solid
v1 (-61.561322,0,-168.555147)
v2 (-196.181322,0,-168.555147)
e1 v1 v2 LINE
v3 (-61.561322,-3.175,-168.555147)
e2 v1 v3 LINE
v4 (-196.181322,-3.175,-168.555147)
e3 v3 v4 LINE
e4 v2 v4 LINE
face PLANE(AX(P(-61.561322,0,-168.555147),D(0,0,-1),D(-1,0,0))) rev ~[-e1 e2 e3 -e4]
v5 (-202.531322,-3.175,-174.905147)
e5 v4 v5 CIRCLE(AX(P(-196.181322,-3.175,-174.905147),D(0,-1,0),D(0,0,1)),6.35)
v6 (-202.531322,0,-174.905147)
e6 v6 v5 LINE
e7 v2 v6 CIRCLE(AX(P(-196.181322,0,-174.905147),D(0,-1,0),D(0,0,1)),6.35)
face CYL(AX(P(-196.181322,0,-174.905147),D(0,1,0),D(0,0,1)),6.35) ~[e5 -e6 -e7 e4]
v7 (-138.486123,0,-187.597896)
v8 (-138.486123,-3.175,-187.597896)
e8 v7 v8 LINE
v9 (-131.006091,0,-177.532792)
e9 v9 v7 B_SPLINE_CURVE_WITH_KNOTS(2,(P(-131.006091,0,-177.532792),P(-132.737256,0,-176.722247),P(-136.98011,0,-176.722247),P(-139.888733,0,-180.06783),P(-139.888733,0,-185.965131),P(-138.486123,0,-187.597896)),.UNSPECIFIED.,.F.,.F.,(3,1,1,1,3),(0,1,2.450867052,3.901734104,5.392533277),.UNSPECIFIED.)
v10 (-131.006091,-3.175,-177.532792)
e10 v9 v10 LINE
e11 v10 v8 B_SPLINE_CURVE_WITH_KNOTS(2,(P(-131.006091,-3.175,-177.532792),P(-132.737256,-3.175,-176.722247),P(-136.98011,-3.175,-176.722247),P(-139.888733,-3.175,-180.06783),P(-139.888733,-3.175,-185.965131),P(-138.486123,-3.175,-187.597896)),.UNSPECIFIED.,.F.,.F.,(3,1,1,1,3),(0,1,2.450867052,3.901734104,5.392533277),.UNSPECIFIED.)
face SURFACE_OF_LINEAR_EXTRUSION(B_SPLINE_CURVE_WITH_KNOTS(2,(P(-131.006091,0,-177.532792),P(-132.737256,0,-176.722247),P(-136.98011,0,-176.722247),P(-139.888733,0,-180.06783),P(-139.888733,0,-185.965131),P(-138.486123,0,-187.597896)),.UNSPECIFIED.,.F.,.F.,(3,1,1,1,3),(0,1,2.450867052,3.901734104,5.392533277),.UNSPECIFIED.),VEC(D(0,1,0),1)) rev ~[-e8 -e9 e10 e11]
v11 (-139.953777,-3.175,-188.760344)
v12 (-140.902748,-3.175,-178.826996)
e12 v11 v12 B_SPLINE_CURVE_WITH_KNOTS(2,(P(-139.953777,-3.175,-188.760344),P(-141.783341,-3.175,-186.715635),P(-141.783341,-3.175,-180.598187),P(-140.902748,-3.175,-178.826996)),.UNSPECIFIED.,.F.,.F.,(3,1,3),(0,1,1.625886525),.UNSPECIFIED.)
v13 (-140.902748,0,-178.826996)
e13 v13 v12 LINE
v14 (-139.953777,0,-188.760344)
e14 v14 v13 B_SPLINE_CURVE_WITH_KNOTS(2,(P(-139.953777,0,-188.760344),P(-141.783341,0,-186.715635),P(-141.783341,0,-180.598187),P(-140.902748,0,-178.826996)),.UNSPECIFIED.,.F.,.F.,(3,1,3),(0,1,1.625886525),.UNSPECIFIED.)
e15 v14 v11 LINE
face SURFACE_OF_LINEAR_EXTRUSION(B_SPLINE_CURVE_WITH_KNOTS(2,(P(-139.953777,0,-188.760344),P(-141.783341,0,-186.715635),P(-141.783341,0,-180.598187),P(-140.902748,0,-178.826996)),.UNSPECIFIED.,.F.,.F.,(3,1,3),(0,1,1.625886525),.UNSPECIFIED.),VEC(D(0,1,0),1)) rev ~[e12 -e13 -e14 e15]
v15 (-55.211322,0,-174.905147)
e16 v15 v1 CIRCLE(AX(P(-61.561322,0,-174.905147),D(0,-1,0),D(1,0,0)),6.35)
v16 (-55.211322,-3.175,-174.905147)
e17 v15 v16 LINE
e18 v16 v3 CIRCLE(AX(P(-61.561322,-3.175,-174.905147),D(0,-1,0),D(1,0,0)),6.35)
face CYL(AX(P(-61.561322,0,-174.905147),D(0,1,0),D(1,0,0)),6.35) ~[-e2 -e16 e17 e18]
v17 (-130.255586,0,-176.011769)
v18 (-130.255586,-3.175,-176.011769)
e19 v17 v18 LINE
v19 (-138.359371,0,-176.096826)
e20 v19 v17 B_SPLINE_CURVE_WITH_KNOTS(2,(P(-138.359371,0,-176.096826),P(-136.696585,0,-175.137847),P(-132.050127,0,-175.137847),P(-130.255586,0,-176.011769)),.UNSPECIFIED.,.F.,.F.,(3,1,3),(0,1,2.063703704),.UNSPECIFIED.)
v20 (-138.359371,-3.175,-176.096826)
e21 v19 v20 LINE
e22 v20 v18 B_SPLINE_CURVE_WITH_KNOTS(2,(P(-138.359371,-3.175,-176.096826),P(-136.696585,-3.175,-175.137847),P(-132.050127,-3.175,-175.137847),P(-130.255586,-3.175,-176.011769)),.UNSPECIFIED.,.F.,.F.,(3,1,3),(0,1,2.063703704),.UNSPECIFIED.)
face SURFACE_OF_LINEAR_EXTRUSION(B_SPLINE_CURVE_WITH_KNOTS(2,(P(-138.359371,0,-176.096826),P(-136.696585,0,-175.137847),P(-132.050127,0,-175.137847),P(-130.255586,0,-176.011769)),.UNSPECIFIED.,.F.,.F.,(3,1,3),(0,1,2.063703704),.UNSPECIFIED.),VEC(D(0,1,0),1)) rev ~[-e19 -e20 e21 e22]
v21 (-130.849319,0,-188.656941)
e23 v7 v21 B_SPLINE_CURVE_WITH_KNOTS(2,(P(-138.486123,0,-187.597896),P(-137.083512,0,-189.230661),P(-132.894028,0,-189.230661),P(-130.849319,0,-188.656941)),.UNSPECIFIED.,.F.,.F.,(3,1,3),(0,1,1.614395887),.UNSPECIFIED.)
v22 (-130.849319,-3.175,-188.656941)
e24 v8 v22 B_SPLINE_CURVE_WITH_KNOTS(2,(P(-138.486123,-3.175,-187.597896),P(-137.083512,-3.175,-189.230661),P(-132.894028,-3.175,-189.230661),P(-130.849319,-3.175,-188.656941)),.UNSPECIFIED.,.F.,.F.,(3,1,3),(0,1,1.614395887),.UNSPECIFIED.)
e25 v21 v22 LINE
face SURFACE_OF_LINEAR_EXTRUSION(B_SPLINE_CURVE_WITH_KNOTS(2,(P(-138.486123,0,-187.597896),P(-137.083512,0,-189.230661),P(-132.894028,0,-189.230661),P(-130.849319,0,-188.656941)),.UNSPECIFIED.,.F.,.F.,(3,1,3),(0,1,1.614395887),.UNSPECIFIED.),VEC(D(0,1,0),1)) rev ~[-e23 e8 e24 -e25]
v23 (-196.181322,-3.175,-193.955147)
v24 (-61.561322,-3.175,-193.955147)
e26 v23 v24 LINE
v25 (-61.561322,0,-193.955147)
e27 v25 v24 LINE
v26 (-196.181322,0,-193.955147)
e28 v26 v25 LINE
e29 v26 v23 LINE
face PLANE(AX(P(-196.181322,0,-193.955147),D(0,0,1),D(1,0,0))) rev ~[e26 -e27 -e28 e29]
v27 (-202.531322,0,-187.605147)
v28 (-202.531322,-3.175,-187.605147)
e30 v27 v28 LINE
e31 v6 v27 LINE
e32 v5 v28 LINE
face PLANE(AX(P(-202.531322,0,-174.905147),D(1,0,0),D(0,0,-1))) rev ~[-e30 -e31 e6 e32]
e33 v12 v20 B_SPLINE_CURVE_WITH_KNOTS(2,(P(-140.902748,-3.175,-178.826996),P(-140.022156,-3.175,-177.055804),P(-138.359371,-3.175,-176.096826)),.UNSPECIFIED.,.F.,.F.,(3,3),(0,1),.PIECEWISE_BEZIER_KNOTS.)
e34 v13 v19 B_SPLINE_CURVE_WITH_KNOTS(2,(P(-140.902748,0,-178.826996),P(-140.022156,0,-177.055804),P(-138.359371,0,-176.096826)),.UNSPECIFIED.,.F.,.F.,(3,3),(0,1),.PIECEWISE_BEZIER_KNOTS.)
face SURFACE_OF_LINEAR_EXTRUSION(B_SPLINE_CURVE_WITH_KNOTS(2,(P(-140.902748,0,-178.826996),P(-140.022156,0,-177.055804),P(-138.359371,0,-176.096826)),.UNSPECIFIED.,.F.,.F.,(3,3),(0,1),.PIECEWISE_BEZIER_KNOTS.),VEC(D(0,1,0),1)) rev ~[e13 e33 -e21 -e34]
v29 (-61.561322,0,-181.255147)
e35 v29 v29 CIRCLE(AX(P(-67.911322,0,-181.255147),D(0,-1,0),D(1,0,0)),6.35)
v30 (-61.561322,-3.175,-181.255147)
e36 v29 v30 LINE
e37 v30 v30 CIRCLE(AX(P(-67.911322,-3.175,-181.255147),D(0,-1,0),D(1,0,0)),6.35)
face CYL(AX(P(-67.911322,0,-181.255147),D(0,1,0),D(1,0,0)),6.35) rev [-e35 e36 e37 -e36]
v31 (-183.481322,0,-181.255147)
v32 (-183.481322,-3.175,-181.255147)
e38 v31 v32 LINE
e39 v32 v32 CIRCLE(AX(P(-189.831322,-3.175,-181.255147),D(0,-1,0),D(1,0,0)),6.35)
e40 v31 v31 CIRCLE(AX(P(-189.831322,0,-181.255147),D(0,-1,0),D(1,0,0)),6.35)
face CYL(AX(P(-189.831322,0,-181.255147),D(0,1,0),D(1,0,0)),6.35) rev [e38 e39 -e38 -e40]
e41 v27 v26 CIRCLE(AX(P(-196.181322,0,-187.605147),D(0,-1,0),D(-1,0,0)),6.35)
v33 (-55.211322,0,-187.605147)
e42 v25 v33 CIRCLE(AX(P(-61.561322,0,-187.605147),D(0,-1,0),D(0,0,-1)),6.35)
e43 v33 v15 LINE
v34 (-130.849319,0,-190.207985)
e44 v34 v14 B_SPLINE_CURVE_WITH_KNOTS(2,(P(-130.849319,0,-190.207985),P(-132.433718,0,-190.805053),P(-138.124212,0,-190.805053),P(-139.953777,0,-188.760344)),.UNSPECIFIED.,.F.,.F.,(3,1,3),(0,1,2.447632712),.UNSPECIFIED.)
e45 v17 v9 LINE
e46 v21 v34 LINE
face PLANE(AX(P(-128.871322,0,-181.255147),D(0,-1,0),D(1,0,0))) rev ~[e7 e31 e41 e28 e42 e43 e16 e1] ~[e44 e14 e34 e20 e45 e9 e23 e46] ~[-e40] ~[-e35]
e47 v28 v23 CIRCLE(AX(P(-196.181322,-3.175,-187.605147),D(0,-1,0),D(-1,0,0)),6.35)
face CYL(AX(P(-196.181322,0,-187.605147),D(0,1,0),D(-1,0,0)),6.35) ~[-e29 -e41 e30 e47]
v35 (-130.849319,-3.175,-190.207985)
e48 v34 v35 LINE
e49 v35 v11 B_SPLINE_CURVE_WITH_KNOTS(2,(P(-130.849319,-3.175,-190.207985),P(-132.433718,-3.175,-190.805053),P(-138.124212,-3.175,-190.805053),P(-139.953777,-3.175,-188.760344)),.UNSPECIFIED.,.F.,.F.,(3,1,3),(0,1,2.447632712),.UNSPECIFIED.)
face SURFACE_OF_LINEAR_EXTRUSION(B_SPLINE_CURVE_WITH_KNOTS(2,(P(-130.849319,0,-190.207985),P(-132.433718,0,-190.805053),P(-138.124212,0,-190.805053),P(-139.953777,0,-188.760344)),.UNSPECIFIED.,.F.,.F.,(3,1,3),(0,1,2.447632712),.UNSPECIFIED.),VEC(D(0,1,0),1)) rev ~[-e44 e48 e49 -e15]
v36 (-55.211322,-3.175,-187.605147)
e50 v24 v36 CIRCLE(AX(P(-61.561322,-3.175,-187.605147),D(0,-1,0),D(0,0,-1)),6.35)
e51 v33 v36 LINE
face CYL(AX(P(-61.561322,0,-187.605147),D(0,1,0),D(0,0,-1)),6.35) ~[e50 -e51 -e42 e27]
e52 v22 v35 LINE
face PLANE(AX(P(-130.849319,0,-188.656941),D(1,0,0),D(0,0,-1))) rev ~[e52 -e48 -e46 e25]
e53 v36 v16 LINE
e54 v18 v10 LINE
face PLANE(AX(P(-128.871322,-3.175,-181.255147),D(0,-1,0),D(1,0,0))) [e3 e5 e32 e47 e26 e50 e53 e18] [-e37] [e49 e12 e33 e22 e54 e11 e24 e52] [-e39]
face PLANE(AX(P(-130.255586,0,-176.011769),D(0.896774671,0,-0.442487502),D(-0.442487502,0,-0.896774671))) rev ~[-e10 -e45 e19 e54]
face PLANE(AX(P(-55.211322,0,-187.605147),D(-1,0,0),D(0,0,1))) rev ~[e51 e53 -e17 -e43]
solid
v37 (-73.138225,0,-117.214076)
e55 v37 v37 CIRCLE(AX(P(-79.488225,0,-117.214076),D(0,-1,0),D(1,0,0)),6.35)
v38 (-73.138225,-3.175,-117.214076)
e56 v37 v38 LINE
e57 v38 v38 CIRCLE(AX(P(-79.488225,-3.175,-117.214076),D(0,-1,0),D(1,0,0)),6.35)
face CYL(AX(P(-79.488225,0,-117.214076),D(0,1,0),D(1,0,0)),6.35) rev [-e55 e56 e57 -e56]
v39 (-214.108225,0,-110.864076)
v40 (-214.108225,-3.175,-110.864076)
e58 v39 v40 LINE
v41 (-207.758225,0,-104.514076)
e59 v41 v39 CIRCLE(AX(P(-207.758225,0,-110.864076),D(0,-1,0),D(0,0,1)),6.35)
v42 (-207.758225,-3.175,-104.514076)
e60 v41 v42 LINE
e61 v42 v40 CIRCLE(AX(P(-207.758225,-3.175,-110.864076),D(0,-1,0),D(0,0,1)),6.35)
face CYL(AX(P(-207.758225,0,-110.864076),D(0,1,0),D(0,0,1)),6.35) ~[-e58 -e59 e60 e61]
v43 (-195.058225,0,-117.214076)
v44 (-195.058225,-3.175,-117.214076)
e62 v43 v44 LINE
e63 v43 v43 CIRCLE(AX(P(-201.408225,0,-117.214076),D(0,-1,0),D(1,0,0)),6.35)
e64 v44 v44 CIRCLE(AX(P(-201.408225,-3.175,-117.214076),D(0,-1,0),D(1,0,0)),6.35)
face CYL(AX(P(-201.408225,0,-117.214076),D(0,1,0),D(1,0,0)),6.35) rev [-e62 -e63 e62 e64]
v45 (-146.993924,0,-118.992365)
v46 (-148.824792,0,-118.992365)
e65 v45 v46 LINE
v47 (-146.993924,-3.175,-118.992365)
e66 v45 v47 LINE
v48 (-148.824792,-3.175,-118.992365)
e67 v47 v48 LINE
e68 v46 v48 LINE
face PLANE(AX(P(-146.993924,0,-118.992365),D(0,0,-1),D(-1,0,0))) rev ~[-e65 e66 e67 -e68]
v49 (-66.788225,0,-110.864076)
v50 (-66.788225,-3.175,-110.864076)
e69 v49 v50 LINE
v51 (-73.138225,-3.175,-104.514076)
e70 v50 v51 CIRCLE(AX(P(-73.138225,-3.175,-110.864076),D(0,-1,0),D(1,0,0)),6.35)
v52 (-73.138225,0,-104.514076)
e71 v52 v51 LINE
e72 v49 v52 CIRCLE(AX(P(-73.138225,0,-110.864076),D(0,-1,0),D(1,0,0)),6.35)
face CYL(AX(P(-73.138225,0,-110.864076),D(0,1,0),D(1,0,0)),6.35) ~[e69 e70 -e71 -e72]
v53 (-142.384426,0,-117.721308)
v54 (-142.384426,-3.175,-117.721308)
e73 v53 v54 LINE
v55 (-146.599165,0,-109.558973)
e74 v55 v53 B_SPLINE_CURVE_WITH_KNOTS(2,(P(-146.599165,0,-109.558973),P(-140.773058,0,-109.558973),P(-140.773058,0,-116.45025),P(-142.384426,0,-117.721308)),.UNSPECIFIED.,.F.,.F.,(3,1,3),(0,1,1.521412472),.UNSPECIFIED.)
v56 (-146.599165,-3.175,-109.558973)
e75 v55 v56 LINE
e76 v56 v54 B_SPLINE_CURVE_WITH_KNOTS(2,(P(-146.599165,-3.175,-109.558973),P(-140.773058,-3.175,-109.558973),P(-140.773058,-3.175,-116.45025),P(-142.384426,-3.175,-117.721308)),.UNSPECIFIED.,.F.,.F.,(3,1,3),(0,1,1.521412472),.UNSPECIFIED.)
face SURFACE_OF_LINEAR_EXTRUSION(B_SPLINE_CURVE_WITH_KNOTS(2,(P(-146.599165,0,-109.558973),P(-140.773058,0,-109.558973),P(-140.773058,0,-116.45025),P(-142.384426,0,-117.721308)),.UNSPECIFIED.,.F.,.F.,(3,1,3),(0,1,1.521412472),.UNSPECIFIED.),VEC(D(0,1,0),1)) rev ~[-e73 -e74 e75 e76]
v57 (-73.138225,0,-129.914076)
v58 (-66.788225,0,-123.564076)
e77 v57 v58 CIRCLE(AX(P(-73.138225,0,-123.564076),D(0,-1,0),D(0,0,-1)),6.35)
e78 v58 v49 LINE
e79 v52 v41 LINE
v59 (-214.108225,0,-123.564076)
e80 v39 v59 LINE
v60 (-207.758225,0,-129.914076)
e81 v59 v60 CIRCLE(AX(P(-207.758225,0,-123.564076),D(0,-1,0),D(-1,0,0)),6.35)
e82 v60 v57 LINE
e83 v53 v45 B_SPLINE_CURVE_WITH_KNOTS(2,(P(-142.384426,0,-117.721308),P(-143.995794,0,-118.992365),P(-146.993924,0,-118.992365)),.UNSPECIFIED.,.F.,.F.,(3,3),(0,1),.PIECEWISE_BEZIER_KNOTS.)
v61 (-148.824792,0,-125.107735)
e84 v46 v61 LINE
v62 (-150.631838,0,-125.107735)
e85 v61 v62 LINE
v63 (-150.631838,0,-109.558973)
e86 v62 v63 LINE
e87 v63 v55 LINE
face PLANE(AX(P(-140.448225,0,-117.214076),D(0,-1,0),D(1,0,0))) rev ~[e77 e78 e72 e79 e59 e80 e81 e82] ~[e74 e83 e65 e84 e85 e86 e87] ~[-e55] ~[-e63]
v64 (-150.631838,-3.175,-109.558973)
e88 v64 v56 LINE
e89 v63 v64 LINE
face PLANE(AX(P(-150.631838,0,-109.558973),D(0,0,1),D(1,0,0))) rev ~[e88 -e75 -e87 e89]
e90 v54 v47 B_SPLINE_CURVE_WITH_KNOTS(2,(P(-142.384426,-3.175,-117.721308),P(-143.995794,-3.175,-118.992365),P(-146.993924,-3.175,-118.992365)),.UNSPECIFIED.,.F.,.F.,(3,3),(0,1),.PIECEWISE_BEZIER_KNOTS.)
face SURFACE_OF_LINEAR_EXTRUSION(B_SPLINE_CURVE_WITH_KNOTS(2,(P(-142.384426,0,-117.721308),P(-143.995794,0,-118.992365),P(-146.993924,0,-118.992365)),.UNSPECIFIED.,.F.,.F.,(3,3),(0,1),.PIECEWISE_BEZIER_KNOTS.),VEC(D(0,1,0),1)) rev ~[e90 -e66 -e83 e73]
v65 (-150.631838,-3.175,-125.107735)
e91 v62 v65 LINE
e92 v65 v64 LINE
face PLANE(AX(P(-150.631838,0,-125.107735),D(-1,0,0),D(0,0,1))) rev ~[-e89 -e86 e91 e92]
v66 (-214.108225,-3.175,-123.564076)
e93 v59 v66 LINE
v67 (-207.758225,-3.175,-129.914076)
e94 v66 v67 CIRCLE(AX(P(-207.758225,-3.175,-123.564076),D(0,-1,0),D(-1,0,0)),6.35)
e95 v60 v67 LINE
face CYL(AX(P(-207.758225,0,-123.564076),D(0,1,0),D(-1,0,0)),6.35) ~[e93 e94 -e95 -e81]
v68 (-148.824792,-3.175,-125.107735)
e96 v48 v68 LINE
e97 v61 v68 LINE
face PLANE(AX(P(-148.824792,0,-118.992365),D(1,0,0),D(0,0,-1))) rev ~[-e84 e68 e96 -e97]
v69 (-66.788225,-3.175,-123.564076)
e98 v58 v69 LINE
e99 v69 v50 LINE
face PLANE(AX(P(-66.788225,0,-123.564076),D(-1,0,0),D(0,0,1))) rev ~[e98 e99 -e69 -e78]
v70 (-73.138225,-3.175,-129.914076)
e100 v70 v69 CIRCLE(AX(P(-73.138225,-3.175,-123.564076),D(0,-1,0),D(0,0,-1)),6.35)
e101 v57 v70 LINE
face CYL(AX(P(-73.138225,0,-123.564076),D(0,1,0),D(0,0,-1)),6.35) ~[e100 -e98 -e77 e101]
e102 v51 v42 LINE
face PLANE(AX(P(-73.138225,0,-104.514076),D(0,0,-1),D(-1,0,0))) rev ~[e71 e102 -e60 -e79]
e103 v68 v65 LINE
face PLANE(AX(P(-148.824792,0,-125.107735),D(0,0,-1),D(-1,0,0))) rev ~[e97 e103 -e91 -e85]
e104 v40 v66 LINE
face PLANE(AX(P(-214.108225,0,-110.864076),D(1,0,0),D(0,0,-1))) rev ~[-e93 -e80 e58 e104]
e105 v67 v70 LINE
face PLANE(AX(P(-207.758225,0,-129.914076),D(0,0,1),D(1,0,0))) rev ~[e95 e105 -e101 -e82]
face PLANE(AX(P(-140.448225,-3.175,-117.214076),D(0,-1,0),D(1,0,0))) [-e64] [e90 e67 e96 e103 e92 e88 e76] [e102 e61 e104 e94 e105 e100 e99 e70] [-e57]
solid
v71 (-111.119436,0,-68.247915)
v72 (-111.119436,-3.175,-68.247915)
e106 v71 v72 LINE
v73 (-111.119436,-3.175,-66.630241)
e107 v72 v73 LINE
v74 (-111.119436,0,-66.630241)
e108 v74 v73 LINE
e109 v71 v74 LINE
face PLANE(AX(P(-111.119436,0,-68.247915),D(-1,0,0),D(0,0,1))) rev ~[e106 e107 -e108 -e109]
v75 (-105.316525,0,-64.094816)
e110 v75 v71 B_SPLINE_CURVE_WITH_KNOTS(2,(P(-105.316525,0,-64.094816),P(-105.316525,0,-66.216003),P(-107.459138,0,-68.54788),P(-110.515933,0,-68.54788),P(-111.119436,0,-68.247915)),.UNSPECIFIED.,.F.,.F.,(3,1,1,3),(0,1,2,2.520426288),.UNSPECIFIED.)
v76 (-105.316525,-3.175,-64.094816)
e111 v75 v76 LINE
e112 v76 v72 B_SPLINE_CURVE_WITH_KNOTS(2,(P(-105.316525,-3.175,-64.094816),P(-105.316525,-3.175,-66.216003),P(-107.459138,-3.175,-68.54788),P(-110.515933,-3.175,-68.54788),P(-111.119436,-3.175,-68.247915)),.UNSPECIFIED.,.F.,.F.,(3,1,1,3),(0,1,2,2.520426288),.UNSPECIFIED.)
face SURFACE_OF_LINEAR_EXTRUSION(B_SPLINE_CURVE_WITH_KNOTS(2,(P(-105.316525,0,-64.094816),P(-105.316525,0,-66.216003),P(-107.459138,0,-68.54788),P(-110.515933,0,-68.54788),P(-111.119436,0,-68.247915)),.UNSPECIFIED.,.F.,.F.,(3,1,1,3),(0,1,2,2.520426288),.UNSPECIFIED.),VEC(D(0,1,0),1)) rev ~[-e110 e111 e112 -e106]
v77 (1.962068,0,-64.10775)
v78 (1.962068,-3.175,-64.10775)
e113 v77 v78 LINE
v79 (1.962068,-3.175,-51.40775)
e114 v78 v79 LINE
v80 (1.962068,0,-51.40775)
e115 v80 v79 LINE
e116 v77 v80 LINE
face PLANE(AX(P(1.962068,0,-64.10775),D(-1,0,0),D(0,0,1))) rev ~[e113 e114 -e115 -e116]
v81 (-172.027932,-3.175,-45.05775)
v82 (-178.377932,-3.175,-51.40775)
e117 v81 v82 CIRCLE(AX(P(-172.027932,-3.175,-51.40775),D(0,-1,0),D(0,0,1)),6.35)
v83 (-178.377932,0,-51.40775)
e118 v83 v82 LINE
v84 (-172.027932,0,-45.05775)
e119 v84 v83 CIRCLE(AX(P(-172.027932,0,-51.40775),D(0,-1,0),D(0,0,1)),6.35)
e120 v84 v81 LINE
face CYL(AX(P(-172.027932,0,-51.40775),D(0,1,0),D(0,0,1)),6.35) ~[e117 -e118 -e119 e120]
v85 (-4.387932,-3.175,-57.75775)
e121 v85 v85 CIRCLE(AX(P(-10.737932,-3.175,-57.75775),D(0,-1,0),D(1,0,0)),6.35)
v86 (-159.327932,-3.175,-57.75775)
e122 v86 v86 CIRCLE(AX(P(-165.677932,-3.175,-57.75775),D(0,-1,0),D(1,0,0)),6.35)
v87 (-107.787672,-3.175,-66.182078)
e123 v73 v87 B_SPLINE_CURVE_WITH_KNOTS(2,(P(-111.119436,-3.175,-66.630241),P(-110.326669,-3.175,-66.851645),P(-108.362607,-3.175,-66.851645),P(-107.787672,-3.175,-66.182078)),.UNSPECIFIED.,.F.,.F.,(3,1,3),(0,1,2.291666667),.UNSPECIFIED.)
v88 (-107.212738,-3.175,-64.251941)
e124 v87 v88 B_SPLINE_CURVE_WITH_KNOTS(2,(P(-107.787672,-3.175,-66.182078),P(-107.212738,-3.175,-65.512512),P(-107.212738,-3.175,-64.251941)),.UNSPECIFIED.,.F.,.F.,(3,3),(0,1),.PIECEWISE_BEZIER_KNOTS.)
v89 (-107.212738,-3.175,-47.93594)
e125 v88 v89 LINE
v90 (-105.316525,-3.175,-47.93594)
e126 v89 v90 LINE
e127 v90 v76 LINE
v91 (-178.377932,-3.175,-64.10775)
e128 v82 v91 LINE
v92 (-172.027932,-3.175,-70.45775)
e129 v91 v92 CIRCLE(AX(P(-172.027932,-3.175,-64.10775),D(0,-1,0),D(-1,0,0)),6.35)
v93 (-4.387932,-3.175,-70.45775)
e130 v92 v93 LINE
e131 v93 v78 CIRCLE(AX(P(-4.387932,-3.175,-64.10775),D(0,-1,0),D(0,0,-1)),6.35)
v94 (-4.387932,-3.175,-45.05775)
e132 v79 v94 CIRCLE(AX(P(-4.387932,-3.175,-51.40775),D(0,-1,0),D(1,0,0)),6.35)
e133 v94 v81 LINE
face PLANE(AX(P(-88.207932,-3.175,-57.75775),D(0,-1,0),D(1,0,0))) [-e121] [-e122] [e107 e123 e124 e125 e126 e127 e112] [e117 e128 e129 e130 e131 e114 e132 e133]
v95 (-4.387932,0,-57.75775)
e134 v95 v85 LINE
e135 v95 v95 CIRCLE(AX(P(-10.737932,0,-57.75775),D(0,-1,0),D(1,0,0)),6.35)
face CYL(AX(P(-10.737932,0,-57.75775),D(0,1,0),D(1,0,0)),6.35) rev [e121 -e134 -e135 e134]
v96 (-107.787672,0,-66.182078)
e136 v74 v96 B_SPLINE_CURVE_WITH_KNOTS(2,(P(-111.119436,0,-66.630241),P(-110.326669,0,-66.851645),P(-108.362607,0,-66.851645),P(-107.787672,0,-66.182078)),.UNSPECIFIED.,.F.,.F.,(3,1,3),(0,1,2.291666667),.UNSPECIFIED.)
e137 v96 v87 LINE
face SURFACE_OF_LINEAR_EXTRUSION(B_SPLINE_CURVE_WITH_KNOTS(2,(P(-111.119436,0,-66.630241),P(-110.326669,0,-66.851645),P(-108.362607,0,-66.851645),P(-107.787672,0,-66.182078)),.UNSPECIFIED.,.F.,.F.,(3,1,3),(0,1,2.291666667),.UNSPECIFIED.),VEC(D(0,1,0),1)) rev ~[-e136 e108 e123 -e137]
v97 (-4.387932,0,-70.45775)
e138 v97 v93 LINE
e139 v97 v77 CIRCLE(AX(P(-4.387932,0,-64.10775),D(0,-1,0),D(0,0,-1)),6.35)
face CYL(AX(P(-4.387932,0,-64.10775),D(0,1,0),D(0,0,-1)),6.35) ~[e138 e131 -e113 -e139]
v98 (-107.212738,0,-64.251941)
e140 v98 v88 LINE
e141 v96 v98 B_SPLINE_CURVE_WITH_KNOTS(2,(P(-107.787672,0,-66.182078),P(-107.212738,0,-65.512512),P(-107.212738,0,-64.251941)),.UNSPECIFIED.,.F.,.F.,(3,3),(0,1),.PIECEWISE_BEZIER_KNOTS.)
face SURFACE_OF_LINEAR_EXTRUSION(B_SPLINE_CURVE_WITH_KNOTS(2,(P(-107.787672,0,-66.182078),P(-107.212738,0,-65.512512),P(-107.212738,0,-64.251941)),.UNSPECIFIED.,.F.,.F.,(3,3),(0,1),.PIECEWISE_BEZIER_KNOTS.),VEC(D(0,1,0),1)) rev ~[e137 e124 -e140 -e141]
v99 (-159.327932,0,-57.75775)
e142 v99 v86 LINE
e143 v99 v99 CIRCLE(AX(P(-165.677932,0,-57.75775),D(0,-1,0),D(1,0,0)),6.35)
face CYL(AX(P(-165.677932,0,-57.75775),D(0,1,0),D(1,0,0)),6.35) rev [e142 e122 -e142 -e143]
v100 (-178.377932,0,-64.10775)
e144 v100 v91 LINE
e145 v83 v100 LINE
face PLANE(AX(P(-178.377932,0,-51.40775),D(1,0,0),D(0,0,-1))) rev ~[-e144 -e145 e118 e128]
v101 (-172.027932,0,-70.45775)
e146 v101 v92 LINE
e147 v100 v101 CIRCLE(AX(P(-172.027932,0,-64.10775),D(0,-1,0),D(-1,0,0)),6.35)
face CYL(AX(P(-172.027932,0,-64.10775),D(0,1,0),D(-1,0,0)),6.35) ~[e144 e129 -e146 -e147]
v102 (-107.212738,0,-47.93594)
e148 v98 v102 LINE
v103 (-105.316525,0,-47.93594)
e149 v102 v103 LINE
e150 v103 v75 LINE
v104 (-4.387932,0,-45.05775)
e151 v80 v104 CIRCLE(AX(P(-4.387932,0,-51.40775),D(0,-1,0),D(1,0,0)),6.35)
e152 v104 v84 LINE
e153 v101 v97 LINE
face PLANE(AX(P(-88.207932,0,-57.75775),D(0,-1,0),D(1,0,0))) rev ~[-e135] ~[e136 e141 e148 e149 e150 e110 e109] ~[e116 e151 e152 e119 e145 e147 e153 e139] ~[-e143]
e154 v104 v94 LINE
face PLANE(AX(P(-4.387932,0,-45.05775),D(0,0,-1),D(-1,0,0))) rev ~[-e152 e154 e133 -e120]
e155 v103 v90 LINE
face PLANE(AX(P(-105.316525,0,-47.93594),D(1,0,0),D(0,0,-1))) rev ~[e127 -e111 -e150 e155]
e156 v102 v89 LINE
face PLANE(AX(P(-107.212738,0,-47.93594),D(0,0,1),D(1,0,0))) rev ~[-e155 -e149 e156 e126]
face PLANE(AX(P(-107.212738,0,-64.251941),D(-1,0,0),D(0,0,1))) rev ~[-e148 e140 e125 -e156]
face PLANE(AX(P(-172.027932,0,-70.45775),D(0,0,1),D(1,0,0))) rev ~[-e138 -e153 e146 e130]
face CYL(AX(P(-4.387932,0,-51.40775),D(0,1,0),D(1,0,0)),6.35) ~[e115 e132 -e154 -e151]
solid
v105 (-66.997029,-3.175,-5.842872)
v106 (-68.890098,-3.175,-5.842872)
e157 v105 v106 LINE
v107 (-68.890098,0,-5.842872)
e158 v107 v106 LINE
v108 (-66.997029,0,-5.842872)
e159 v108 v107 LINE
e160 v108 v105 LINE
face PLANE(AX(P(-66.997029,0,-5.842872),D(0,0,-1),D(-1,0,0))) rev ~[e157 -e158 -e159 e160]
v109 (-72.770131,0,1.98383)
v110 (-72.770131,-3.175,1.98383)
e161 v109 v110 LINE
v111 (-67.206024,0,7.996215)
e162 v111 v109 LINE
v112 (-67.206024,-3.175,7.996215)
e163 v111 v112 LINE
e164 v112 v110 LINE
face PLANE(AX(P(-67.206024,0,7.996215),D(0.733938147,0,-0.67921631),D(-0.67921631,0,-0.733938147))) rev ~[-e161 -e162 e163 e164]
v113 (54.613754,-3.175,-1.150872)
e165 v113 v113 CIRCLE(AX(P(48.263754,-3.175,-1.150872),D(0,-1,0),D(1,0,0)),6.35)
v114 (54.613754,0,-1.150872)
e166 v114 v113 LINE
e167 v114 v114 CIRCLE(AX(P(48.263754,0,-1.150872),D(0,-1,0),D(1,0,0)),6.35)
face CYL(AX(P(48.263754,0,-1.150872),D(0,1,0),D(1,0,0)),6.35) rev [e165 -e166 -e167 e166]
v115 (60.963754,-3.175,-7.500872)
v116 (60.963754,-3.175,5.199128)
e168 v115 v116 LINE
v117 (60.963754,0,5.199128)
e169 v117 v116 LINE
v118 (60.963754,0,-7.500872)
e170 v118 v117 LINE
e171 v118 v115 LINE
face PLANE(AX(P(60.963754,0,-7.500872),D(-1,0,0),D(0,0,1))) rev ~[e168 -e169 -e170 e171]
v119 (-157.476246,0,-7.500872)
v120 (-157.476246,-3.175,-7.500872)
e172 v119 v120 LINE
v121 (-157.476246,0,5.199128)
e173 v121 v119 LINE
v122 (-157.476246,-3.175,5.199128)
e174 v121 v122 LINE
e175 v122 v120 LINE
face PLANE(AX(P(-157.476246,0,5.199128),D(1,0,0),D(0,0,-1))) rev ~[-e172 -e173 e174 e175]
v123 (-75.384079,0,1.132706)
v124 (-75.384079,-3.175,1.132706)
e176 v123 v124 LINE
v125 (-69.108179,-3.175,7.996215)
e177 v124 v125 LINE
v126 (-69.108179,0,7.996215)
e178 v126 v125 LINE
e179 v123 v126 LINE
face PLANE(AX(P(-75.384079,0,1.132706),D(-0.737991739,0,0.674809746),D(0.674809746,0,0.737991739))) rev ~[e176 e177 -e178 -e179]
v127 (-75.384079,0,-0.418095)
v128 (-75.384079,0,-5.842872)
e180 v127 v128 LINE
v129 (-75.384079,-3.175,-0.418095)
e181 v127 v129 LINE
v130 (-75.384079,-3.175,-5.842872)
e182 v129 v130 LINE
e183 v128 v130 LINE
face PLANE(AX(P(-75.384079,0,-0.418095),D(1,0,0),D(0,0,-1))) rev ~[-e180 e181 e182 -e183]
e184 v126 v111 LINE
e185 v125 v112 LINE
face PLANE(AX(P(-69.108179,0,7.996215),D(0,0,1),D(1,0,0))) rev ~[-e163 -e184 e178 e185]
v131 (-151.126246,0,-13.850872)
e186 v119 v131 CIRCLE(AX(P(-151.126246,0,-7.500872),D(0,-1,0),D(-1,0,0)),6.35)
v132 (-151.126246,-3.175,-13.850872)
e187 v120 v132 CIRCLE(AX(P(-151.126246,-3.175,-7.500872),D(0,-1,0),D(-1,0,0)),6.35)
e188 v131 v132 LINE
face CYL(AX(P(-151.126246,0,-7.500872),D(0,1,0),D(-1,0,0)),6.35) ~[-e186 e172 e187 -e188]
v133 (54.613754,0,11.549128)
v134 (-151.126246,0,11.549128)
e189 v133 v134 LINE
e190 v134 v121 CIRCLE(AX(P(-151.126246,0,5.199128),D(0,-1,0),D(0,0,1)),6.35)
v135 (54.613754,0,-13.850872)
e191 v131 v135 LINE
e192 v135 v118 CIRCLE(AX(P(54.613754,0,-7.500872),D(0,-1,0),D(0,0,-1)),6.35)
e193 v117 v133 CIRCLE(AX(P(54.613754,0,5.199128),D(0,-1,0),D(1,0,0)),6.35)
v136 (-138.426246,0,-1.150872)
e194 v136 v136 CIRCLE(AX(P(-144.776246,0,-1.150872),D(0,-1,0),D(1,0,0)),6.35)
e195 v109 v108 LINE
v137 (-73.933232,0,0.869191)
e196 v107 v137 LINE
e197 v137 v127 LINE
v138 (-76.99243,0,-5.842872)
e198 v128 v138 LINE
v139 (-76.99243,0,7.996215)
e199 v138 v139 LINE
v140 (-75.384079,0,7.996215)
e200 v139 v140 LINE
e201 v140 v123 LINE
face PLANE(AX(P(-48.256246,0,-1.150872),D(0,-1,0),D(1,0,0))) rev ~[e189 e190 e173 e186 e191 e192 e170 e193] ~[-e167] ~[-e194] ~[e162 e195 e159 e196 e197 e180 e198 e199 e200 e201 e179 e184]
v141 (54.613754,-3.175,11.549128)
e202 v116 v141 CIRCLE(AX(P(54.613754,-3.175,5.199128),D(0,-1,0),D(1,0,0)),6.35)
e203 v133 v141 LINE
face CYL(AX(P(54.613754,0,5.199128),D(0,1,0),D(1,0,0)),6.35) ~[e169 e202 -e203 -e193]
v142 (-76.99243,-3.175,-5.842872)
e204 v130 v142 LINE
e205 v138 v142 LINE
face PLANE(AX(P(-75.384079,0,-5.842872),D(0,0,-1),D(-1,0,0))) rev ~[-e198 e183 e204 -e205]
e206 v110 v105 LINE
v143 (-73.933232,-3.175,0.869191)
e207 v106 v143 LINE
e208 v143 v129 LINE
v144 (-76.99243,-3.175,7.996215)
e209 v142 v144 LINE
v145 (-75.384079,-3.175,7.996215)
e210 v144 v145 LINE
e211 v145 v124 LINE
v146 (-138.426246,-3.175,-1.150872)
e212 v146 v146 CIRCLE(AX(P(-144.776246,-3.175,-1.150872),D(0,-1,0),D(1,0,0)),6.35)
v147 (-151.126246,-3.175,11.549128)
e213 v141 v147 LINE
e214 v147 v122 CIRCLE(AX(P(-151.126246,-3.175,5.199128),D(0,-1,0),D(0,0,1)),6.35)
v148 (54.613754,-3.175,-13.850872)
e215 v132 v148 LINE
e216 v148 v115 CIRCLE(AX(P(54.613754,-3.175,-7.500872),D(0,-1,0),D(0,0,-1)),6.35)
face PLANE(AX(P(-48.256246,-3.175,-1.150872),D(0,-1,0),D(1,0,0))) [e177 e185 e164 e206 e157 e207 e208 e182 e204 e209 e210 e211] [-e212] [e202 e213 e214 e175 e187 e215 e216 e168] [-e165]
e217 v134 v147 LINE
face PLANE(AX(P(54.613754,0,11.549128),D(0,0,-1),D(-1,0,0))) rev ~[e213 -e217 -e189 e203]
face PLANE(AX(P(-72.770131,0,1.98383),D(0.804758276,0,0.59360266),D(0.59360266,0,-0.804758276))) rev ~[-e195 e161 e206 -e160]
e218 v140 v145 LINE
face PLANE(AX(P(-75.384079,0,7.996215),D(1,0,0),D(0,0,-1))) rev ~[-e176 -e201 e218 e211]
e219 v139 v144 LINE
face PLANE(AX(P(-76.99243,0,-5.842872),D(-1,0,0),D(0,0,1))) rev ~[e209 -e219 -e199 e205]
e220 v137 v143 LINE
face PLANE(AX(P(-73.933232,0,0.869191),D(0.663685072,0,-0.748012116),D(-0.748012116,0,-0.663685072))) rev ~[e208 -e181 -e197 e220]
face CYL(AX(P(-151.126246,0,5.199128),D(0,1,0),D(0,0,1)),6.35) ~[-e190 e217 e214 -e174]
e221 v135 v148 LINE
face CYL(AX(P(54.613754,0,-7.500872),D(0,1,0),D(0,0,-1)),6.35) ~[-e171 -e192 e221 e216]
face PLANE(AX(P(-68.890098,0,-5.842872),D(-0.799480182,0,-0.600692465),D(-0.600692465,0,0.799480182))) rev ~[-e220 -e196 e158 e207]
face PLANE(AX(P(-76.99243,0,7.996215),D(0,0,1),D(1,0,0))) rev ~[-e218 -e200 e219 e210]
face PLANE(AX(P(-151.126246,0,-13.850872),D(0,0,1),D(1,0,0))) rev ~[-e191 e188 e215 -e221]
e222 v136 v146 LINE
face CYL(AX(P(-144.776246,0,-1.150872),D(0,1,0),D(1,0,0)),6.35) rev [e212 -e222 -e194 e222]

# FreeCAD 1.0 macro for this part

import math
import FreeCAD as App
import Part
import Sketcher

V = App.Vector
Q = App.Units.Quantity

doc = App.newDocument("Part")
body = doc.addObject("PartDesign::Body", "Body")

# Sketch on XZ plane
sketch1 = body.newObject("Sketcher::SketchObject", "Sketch")
sketch1.AttachmentSupport = (doc.getObject("XZ_Plane"), [""])
sketch1.MapMode = "FlatFace"
sketch1.addGeometry([
    Part.LineSegment(V(54.613754, 11.549128, 0), V(-151.126246, 11.549128, 0)),  # 0
    Part.ArcOfCircle(Part.Circle(V(-151.126246, 5.199128, 0), V(0, 0, 1), 6.35), math.radians(90), math.radians(180)),  # 1
    Part.LineSegment(V(-157.476246, 5.199128, 0), V(-157.476246, -7.500872, 0)),  # 2
    Part.ArcOfCircle(Part.Circle(V(-151.126246, -7.500872, 0), V(0, 0, 1), 6.35), math.radians(180), math.radians(270)),  # 3
    Part.LineSegment(V(-151.126246, -13.850872, 0), V(54.613754, -13.850872, 0)),  # 4
    Part.ArcOfCircle(Part.Circle(V(54.613754, -7.500872, 0), V(0, 0, 1), 6.35), math.radians(-90), math.radians(0)),  # 5
    Part.LineSegment(V(60.963754, -7.500872, 0), V(60.963754, 5.199128, 0)),  # 6
    Part.ArcOfCircle(Part.Circle(V(54.613754, 5.199128, 0), V(0, 0, 1), 6.35), math.radians(0), math.radians(90)),  # 7
    Part.Circle(V(-144.776246, -1.150872, 0), V(0, 0, 1), 6.35),  # 8
    Part.Circle(V(48.263754, -1.150872, 0), V(0, 0, 1), 6.35),  # 9
    Part.LineSegment(V(-67.206024, 7.996215, 0), V(-72.770131, 1.98383, 0)),  # 10
    Part.LineSegment(V(-72.770131, 1.98383, 0), V(-66.997029, -5.842872, 0)),  # 11
    Part.LineSegment(V(-66.997029, -5.842872, 0), V(-68.890098, -5.842872, 0)),  # 12
    Part.LineSegment(V(-68.890098, -5.842872, 0), V(-73.933232, 0.869191, 0)),  # 13
    Part.LineSegment(V(-73.933232, 0.869191, 0), V(-75.384079, -0.418095, 0)),  # 14
    Part.LineSegment(V(-75.384079, -0.418095, 0), V(-75.384079, -5.842872, 0)),  # 15
    Part.LineSegment(V(-75.384079, -5.842872, 0), V(-76.99243, -5.842872, 0)),  # 16
    Part.LineSegment(V(-76.99243, -5.842872, 0), V(-76.99243, 7.996215, 0)),  # 17
    Part.LineSegment(V(-76.99243, 7.996215, 0), V(-75.384079, 7.996215, 0)),  # 18
    Part.LineSegment(V(-75.384079, 7.996215, 0), V(-75.384079, 1.132706, 0)),  # 19
    Part.LineSegment(V(-75.384079, 1.132706, 0), V(-69.108179, 7.996215, 0)),  # 20
    Part.LineSegment(V(-69.108179, 7.996215, 0), V(-67.206024, 7.996215, 0)),  # 21
], False)
sketch1.addConstraint([
    Sketcher.Constraint("Tangent", 0, 2, 1, 1),
    Sketcher.Constraint("Tangent", 1, 2, 2, 1),
    Sketcher.Constraint("Tangent", 2, 2, 3, 1),
    Sketcher.Constraint("Tangent", 3, 2, 4, 1),
    Sketcher.Constraint("Tangent", 4, 2, 5, 1),
    Sketcher.Constraint("Tangent", 5, 2, 6, 1),
    Sketcher.Constraint("Tangent", 6, 2, 7, 1),
    Sketcher.Constraint("Tangent", 7, 2, 0, 1),
    Sketcher.Constraint("Coincident", 10, 2, 11, 1),
    Sketcher.Constraint("Coincident", 11, 2, 12, 1),
    Sketcher.Constraint("Coincident", 12, 2, 13, 1),
    Sketcher.Constraint("Coincident", 13, 2, 14, 1),
    Sketcher.Constraint("Coincident", 14, 2, 15, 1),
    Sketcher.Constraint("Coincident", 15, 2, 16, 1),
    Sketcher.Constraint("Coincident", 16, 2, 17, 1),
    Sketcher.Constraint("Coincident", 17, 2, 18, 1),
    Sketcher.Constraint("Coincident", 18, 2, 19, 1),
    Sketcher.Constraint("Coincident", 19, 2, 20, 1),
    Sketcher.Constraint("Coincident", 20, 2, 21, 1),
    Sketcher.Constraint("Coincident", 21, 2, 10, 1),
    Sketcher.Constraint("Horizontal", 0),
    Sketcher.Constraint("Vertical", 2),
    Sketcher.Constraint("Horizontal", 4),
    Sketcher.Constraint("Vertical", 6),
    Sketcher.Constraint("Horizontal", 12),
    Sketcher.Constraint("Vertical", 15),
    Sketcher.Constraint("Horizontal", 16),
    Sketcher.Constraint("Vertical", 17),
    Sketcher.Constraint("Horizontal", 18),
    Sketcher.Constraint("Vertical", 19),
    Sketcher.Constraint("Horizontal", 21),
    Sketcher.Constraint("Equal", 1, 3),
    Sketcher.Constraint("Equal", 3, 5),
    Sketcher.Constraint("Equal", 5, 7),
    Sketcher.Constraint("Equal", 7, 8),
    Sketcher.Constraint("Equal", 8, 9),
    Sketcher.Constraint("Horizontal", 8, 3, 9, 3),
    Sketcher.Constraint("Horizontal", 12, 2, 15, 2),
    Sketcher.Constraint("Horizontal", 18, 2, 20, 2),
    Sketcher.Constraint("Vertical", 15, 2, 18, 2),
    Sketcher.Constraint("Diameter", 8, Q("0.5 in")),
    Sketcher.Constraint("DistanceX", 0, 2, 0, 1, Q("8.1 in")),
    Sketcher.Constraint("DistanceY", 2, 2, 2, 1, Q("0.5 in")),
    Sketcher.Constraint("DistanceX", 8, 3, 9, 3, Q("7.6 in")),
    Sketcher.Constraint("DistanceY", 8, 3, 0, 2, Q("0.5 in")),
    Sketcher.Constraint("DistanceX", 1, 2, 8, 3, Q("0.5 in")),
    Sketcher.Constraint("DistanceX", 12, 2, 12, 1, 1.893068),
    Sketcher.Constraint("DistanceX", 16, 2, 16, 1, 1.608351),
    Sketcher.Constraint("DistanceY", 19, 2, 19, 1, 6.863509),
    Sketcher.Constraint("DistanceX", 10, 2, 11, 2, 5.773101),
    Sketcher.Constraint("DistanceY", 11, 2, 10, 2, 7.826702),
    Sketcher.Constraint("DistanceY", 11, 2, 8, 3, 4.692),
    Sketcher.Constraint("DistanceX", 13, 2, 10, 2, 1.163101),
    Sketcher.Constraint("DistanceX", 16, 2, 13, 2, 3.059199),
    Sketcher.Constraint("DistanceY", 14, 2, 19, 2, 1.550802),
    Sketcher.Constraint("DistanceX", 18, 2, 20, 2, 6.2759),
    Sketcher.Constraint("Distance", 10, 8.191951),
    Sketcher.Constraint("DistanceX", 21, 1, 21, 2, 1.902155),
    Sketcher.Constraint("DistanceX", 10, 2, -1, 1, 72.770131),
    Sketcher.Constraint("DistanceY", -1, 1, 10, 2, 1.98383),
    Sketcher.Constraint("DistanceY", -1, 1, 13, 2, 0.869191),
    Sketcher.Constraint("DistanceX", 8, 3, 12, 2, 75.886149),
])
pad1 = body.newObject("PartDesign::Pad", "Pad")
pad1.Profile = sketch1
pad1.Length = Q("0.125 in")
body2 = doc.addObject("PartDesign::Body", "Body001")

# Sketch on XZ plane
sketch2 = body2.newObject("Sketcher::SketchObject", "Sketch001")
sketch2.AttachmentSupport = (doc.getObject("XZ_Plane001"), [""])
sketch2.MapMode = "FlatFace"
sketch2.addGeometry([
    Part.LineSegment(V(-4.387932, -45.05775, 0), V(-172.027932, -45.05775, 0)),  # 0
    Part.ArcOfCircle(Part.Circle(V(-172.027932, -51.40775, 0), V(0, 0, 1), 6.35), math.radians(90), math.radians(180)),  # 1
    Part.LineSegment(V(-178.377932, -51.40775, 0), V(-178.377932, -64.10775, 0)),  # 2
    Part.ArcOfCircle(Part.Circle(V(-172.027932, -64.10775, 0), V(0, 0, 1), 6.35), math.radians(-180), math.radians(-90)),  # 3
    Part.LineSegment(V(-172.027932, -70.45775, 0), V(-4.387932, -70.45775, 0)),  # 4
    Part.ArcOfCircle(Part.Circle(V(-4.387932, -64.10775, 0), V(0, 0, 1), 6.35), math.radians(-90), math.radians(0)),  # 5
    Part.LineSegment(V(1.962068, -64.10775, 0), V(1.962068, -51.40775, 0)),  # 6
    Part.ArcOfCircle(Part.Circle(V(-4.387932, -51.40775, 0), V(0, 0, 1), 6.35), math.radians(0), math.radians(90)),  # 7
    Part.Circle(V(-165.677932, -57.75775, 0), V(0, 0, 1), 6.35),  # 8
    Part.BSplineCurve([V(-105.316525, -64.094816, 0), V(-105.316525, -66.216003, 0), V(-107.459138, -68.54788, 0), V(-110.515933, -68.54788, 0), V(-111.119436, -68.247915, 0)], [3, 1, 1, 3], [0, 1, 2, 2.520426288], False, 2, [1, 1, 1, 1, 1], False),  # 9
    Part.LineSegment(V(-111.119436, -68.247915, 0), V(-111.119436, -66.630241, 0)),  # 10
    Part.BSplineCurve([V(-111.119436, -66.630241, 0), V(-110.326669, -66.851645, 0), V(-108.362607, -66.851645, 0), V(-107.787672, -66.182078, 0)], [3, 1, 3], [0, 1, 2.291666667], False, 2, [1, 1, 1, 1], False),  # 11
    Part.BSplineCurve([V(-107.787672, -66.182078, 0), V(-107.212738, -65.512512, 0), V(-107.212738, -64.251941, 0)], [3, 3], [0, 1], False, 2, [1, 1, 1], False),  # 12
    Part.LineSegment(V(-107.212738, -64.251941, 0), V(-107.212738, -47.93594, 0)),  # 13
    Part.LineSegment(V(-107.212738, -47.93594, 0), V(-105.316525, -47.93594, 0)),  # 14
    Part.LineSegment(V(-105.316525, -47.93594, 0), V(-105.316525, -64.094816, 0)),  # 15
    Part.Circle(V(-10.737932, -57.75775, 0), V(0, 0, 1), 6.35),  # 16
], False)
sketch2.addConstraint([
    Sketcher.Constraint("Block", 9),
    Sketcher.Constraint("Block", 11),
    Sketcher.Constraint("Block", 12),
    Sketcher.Constraint("Tangent", 0, 2, 1, 1),
    Sketcher.Constraint("Tangent", 1, 2, 2, 1),
    Sketcher.Constraint("Tangent", 2, 2, 3, 1),
    Sketcher.Constraint("Tangent", 3, 2, 4, 1),
    Sketcher.Constraint("Tangent", 4, 2, 5, 1),
    Sketcher.Constraint("Tangent", 5, 2, 6, 1),
    Sketcher.Constraint("Tangent", 6, 2, 7, 1),
    Sketcher.Constraint("Tangent", 7, 2, 0, 1),
    Sketcher.Constraint("Coincident", 9, 2, 10, 1),
    Sketcher.Constraint("Coincident", 10, 2, 11, 1),
    Sketcher.Constraint("Coincident", 12, 2, 13, 1),
    Sketcher.Constraint("Coincident", 13, 2, 14, 1),
    Sketcher.Constraint("Coincident", 14, 2, 15, 1),
    Sketcher.Constraint("Coincident", 15, 2, 9, 1),
    Sketcher.Constraint("Horizontal", 0),
    Sketcher.Constraint("Vertical", 2),
    Sketcher.Constraint("Horizontal", 4),
    Sketcher.Constraint("Vertical", 6),
    Sketcher.Constraint("Vertical", 13),
    Sketcher.Constraint("Horizontal", 14),
    Sketcher.Constraint("Vertical", 15),
    Sketcher.Constraint("Equal", 1, 3),
    Sketcher.Constraint("Equal", 3, 5),
    Sketcher.Constraint("Equal", 5, 7),
    Sketcher.Constraint("Equal", 7, 8),
    Sketcher.Constraint("Equal", 8, 16),
    Sketcher.Constraint("Horizontal", 8, 3, 16, 3),
    Sketcher.Constraint("Diameter", 8, Q("0.5 in")),
    Sketcher.Constraint("DistanceX", 0, 2, 0, 1, Q("6.6 in")),
    Sketcher.Constraint("DistanceY", 2, 2, 2, 1, Q("0.5 in")),
    Sketcher.Constraint("DistanceX", 8, 3, 16, 3, Q("6.1 in")),
    Sketcher.Constraint("DistanceY", 8, 3, 0, 2, Q("0.5 in")),
    Sketcher.Constraint("DistanceX", 1, 2, 8, 3, Q("0.5 in")),
    Sketcher.Constraint("DistanceY", 13, 1, 13, 2, 16.316),
    Sketcher.Constraint("DistanceY", 1, 3, -1, 1, 51.40775),
    Sketcher.Constraint("DistanceX", 1, 3, -1, 1, 172.027932),
])
pad2 = body2.newObject("PartDesign::Pad", "Pad001")
pad2.Profile = sketch2
pad2.Length = Q("0.125 in")
body3 = doc.addObject("PartDesign::Body", "Body002")

# Sketch on XZ plane
sketch3 = body3.newObject("Sketcher::SketchObject", "Sketch002")
sketch3.AttachmentSupport = (doc.getObject("XZ_Plane002"), [""])
sketch3.MapMode = "FlatFace"
sketch3.addGeometry([
    Part.LineSegment(V(-73.138225, -104.514076, 0), V(-207.758225, -104.514076, 0)),  # 0
    Part.ArcOfCircle(Part.Circle(V(-207.758225, -110.864076, 0), V(0, 0, 1), 6.35), math.radians(90), math.radians(180)),  # 1
    Part.LineSegment(V(-214.108225, -110.864076, 0), V(-214.108225, -123.564076, 0)),  # 2
    Part.ArcOfCircle(Part.Circle(V(-207.758225, -123.564076, 0), V(0, 0, 1), 6.35), math.radians(180), math.radians(270)),  # 3
    Part.LineSegment(V(-207.758225, -129.914076, 0), V(-73.138225, -129.914076, 0)),  # 4
    Part.ArcOfCircle(Part.Circle(V(-73.138225, -123.564076, 0), V(0, 0, 1), 6.35), math.radians(-90), math.radians(0)),  # 5
    Part.LineSegment(V(-66.788225, -123.564076, 0), V(-66.788225, -110.864076, 0)),  # 6
    Part.ArcOfCircle(Part.Circle(V(-73.138225, -110.864076, 0), V(0, 0, 1), 6.35), math.radians(0), math.radians(90)),  # 7
    Part.LineSegment(V(-150.631838, -109.558973, 0), V(-146.599165, -109.558973, 0)),  # 8
    Part.BSplineCurve([V(-146.599165, -109.558973, 0), V(-140.773058, -109.558973, 0), V(-140.773058, -116.45025, 0), V(-142.384426, -117.721308, 0)], [3, 1, 3], [0, 1, 1.521412472], False, 2, [1, 1, 1, 1], False),  # 9
    Part.BSplineCurve([V(-142.384426, -117.721308, 0), V(-143.995794, -118.992365, 0), V(-146.993924, -118.992365, 0)], [3, 3], [0, 1], False, 2, [1, 1, 1], False),  # 10
    Part.LineSegment(V(-146.993924, -118.992365, 0), V(-148.824792, -118.992365, 0)),  # 11
    Part.LineSegment(V(-148.824792, -118.992365, 0), V(-148.824792, -125.107735, 0)),  # 12
    Part.LineSegment(V(-148.824792, -125.107735, 0), V(-150.631838, -125.107735, 0)),  # 13
    Part.LineSegment(V(-150.631838, -125.107735, 0), V(-150.631838, -109.558973, 0)),  # 14
    Part.Circle(V(-201.408225, -117.214076, 0), V(0, 0, 1), 6.35),  # 15
    Part.Circle(V(-79.488225, -117.214076, 0), V(0, 0, 1), 6.35),  # 16
], False)
sketch3.addConstraint([
    Sketcher.Constraint("Block", 9),
    Sketcher.Constraint("Block", 10),
    Sketcher.Constraint("Tangent", 0, 2, 1, 1),
    Sketcher.Constraint("Tangent", 1, 2, 2, 1),
    Sketcher.Constraint("Tangent", 2, 2, 3, 1),
    Sketcher.Constraint("Tangent", 3, 2, 4, 1),
    Sketcher.Constraint("Tangent", 4, 2, 5, 1),
    Sketcher.Constraint("Tangent", 5, 2, 6, 1),
    Sketcher.Constraint("Tangent", 6, 2, 7, 1),
    Sketcher.Constraint("Tangent", 7, 2, 0, 1),
    Sketcher.Constraint("Coincident", 8, 2, 9, 1),
    Sketcher.Constraint("Coincident", 10, 2, 11, 1),
    Sketcher.Constraint("Coincident", 11, 2, 12, 1),
    Sketcher.Constraint("Coincident", 12, 2, 13, 1),
    Sketcher.Constraint("Coincident", 13, 2, 14, 1),
    Sketcher.Constraint("Coincident", 14, 2, 8, 1),
    Sketcher.Constraint("Horizontal", 0),
    Sketcher.Constraint("Vertical", 2),
    Sketcher.Constraint("Horizontal", 4),
    Sketcher.Constraint("Vertical", 6),
    Sketcher.Constraint("Horizontal", 8),
    Sketcher.Constraint("Horizontal", 11),
    Sketcher.Constraint("Vertical", 12),
    Sketcher.Constraint("Horizontal", 13),
    Sketcher.Constraint("Vertical", 14),
    Sketcher.Constraint("Equal", 1, 3),
    Sketcher.Constraint("Equal", 3, 5),
    Sketcher.Constraint("Equal", 5, 7),
    Sketcher.Constraint("Equal", 7, 15),
    Sketcher.Constraint("Equal", 15, 16),
    Sketcher.Constraint("Horizontal", 15, 3, 16, 3),
    Sketcher.Constraint("Diameter", 15, Q("0.5 in")),
    Sketcher.Constraint("DistanceX", 0, 2, 0, 1, Q("5.3 in")),
    Sketcher.Constraint("DistanceY", 2, 2, 2, 1, Q("0.5 in")),
    Sketcher.Constraint("DistanceX", 15, 3, 16, 3, Q("4.8 in")),
    Sketcher.Constraint("DistanceY", 15, 3, 0, 2, Q("0.5 in")),
    Sketcher.Constraint("DistanceX", 1, 2, 15, 3, Q("0.5 in")),
    Sketcher.Constraint("DistanceY", 12, 2, 12, 1, 6.11537),
    Sketcher.Constraint("DistanceX", 8, 1, 8, 2, 4.032673),
    Sketcher.Constraint("DistanceX", 11, 2, 11, 1, 1.830868),
    Sketcher.Constraint("DistanceX", 15, 3, 8, 2, 54.80906),
    Sketcher.Constraint("DistanceY", 11, 2, 15, 3, 1.778289),
])
pad3 = body3.newObject("PartDesign::Pad", "Pad002")
pad3.Profile = sketch3
pad3.Length = Q("0.125 in")
body4 = doc.addObject("PartDesign::Body", "Body003")

# Sketch on XZ plane
sketch4 = body4.newObject("Sketcher::SketchObject", "Sketch003")
sketch4.AttachmentSupport = (doc.getObject("XZ_Plane003"), [""])
sketch4.MapMode = "FlatFace"
sketch4.addGeometry([
    Part.LineSegment(V(-61.561322, -168.555147, 0), V(-196.181322, -168.555147, 0)),  # 0
    Part.ArcOfCircle(Part.Circle(V(-196.181322, -174.905147, 0), V(0, 0, 1), 6.35), math.radians(90), math.radians(180)),  # 1
    Part.LineSegment(V(-202.531322, -174.905147, 0), V(-202.531322, -187.605147, 0)),  # 2
    Part.ArcOfCircle(Part.Circle(V(-196.181322, -187.605147, 0), V(0, 0, 1), 6.35), math.radians(180), math.radians(270)),  # 3
    Part.LineSegment(V(-196.181322, -193.955147, 0), V(-61.561322, -193.955147, 0)),  # 4
    Part.ArcOfCircle(Part.Circle(V(-61.561322, -187.605147, 0), V(0, 0, 1), 6.35), math.radians(-90), math.radians(0)),  # 5
    Part.LineSegment(V(-55.211322, -187.605147, 0), V(-55.211322, -174.905147, 0)),  # 6
    Part.ArcOfCircle(Part.Circle(V(-61.561322, -174.905147, 0), V(0, 0, 1), 6.35), math.radians(0), math.radians(90)),  # 7
    Part.LineSegment(V(-130.255586, -176.011769, 0), V(-131.006091, -177.532792, 0)),  # 8
    Part.BSplineCurve([V(-131.006091, -177.532792, 0), V(-132.737256, -176.722247, 0), V(-136.98011, -176.722247, 0), V(-139.888733, -180.06783, 0), V(-139.888733, -185.965131, 0), V(-138.486123, -187.597896, 0)], [3, 1, 1, 1, 3], [0, 1, 2.450867052, 3.901734104, 5.392533277], False, 2, [1, 1, 1, 1, 1, 1], False),  # 9
    Part.BSplineCurve([V(-138.486123, -187.597896, 0), V(-137.083512, -189.230661, 0), V(-132.894028, -189.230661, 0), V(-130.849319, -188.656941, 0)], [3, 1, 3], [0, 1, 1.614395887], False, 2, [1, 1, 1, 1], False),  # 10
    Part.LineSegment(V(-130.849319, -188.656941, 0), V(-130.849319, -190.207985, 0)),  # 11
    Part.BSplineCurve([V(-130.849319, -190.207985, 0), V(-132.433718, -190.805053, 0), V(-138.124212, -190.805053, 0), V(-139.953777, -188.760344, 0)], [3, 1, 3], [0, 1, 2.447632712], False, 2, [1, 1, 1, 1], False),  # 12
    Part.BSplineCurve([V(-139.953777, -188.760344, 0), V(-141.783341, -186.715635, 0), V(-141.783341, -180.598187, 0), V(-140.902748, -178.826996, 0)], [3, 1, 3], [0, 1, 1.625886525], False, 2, [1, 1, 1, 1], False),  # 13
    Part.BSplineCurve([V(-140.902748, -178.826996, 0), V(-140.022156, -177.055804, 0), V(-138.359371, -176.096826, 0)], [3, 3], [0, 1], False, 2, [1, 1, 1], False),  # 14
    Part.BSplineCurve([V(-138.359371, -176.096826, 0), V(-136.696585, -175.137847, 0), V(-132.050127, -175.137847, 0), V(-130.255586, -176.011769, 0)], [3, 1, 3], [0, 1, 2.063703704], False, 2, [1, 1, 1, 1], False),  # 15
    Part.Circle(V(-189.831322, -181.255147, 0), V(0, 0, 1), 6.35),  # 16
    Part.Circle(V(-67.911322, -181.255147, 0), V(0, 0, 1), 6.35),  # 17
], False)
sketch4.addConstraint([
    Sketcher.Constraint("Block", 9),
    Sketcher.Constraint("Block", 10),
    Sketcher.Constraint("Block", 12),
    Sketcher.Constraint("Block", 13),
    Sketcher.Constraint("Block", 14),
    Sketcher.Constraint("Block", 15),
    Sketcher.Constraint("Tangent", 0, 2, 1, 1),
    Sketcher.Constraint("Tangent", 1, 2, 2, 1),
    Sketcher.Constraint("Tangent", 2, 2, 3, 1),
    Sketcher.Constraint("Tangent", 3, 2, 4, 1),
    Sketcher.Constraint("Tangent", 4, 2, 5, 1),
    Sketcher.Constraint("Tangent", 5, 2, 6, 1),
    Sketcher.Constraint("Tangent", 6, 2, 7, 1),
    Sketcher.Constraint("Tangent", 7, 2, 0, 1),
    Sketcher.Constraint("Coincident", 8, 2, 9, 1),
    Sketcher.Constraint("Coincident", 10, 2, 11, 1),
    Sketcher.Constraint("Coincident", 11, 2, 12, 1),
    Sketcher.Constraint("Coincident", 15, 2, 8, 1),
    Sketcher.Constraint("Horizontal", 0),
    Sketcher.Constraint("Vertical", 2),
    Sketcher.Constraint("Horizontal", 4),
    Sketcher.Constraint("Vertical", 6),
    Sketcher.Constraint("Equal", 1, 3),
    Sketcher.Constraint("Equal", 3, 5),
    Sketcher.Constraint("Equal", 5, 7),
    Sketcher.Constraint("Equal", 7, 16),
    Sketcher.Constraint("Equal", 16, 17),
    Sketcher.Constraint("Horizontal", 16, 3, 17, 3),
    Sketcher.Constraint("Diameter", 16, Q("0.5 in")),
    Sketcher.Constraint("DistanceX", 0, 2, 0, 1, Q("5.3 in")),
    Sketcher.Constraint("DistanceY", 2, 2, 2, 1, Q("0.5 in")),
    Sketcher.Constraint("DistanceX", 16, 3, 17, 3, Q("4.8 in")),
    Sketcher.Constraint("DistanceY", 16, 3, 0, 2, Q("0.5 in")),
    Sketcher.Constraint("DistanceX", 1, 2, 16, 3, Q("0.5 in")),
    Sketcher.Constraint("DistanceX", 1, 3, -1, 1, 196.181322),
    Sketcher.Constraint("DistanceY", 1, 3, -1, 1, 174.905147),
])
pad4 = body4.newObject("PartDesign::Pad", "Pad003")
pad4.Profile = sketch4
pad4.Length = Q("0.125 in")

doc.recompute()
